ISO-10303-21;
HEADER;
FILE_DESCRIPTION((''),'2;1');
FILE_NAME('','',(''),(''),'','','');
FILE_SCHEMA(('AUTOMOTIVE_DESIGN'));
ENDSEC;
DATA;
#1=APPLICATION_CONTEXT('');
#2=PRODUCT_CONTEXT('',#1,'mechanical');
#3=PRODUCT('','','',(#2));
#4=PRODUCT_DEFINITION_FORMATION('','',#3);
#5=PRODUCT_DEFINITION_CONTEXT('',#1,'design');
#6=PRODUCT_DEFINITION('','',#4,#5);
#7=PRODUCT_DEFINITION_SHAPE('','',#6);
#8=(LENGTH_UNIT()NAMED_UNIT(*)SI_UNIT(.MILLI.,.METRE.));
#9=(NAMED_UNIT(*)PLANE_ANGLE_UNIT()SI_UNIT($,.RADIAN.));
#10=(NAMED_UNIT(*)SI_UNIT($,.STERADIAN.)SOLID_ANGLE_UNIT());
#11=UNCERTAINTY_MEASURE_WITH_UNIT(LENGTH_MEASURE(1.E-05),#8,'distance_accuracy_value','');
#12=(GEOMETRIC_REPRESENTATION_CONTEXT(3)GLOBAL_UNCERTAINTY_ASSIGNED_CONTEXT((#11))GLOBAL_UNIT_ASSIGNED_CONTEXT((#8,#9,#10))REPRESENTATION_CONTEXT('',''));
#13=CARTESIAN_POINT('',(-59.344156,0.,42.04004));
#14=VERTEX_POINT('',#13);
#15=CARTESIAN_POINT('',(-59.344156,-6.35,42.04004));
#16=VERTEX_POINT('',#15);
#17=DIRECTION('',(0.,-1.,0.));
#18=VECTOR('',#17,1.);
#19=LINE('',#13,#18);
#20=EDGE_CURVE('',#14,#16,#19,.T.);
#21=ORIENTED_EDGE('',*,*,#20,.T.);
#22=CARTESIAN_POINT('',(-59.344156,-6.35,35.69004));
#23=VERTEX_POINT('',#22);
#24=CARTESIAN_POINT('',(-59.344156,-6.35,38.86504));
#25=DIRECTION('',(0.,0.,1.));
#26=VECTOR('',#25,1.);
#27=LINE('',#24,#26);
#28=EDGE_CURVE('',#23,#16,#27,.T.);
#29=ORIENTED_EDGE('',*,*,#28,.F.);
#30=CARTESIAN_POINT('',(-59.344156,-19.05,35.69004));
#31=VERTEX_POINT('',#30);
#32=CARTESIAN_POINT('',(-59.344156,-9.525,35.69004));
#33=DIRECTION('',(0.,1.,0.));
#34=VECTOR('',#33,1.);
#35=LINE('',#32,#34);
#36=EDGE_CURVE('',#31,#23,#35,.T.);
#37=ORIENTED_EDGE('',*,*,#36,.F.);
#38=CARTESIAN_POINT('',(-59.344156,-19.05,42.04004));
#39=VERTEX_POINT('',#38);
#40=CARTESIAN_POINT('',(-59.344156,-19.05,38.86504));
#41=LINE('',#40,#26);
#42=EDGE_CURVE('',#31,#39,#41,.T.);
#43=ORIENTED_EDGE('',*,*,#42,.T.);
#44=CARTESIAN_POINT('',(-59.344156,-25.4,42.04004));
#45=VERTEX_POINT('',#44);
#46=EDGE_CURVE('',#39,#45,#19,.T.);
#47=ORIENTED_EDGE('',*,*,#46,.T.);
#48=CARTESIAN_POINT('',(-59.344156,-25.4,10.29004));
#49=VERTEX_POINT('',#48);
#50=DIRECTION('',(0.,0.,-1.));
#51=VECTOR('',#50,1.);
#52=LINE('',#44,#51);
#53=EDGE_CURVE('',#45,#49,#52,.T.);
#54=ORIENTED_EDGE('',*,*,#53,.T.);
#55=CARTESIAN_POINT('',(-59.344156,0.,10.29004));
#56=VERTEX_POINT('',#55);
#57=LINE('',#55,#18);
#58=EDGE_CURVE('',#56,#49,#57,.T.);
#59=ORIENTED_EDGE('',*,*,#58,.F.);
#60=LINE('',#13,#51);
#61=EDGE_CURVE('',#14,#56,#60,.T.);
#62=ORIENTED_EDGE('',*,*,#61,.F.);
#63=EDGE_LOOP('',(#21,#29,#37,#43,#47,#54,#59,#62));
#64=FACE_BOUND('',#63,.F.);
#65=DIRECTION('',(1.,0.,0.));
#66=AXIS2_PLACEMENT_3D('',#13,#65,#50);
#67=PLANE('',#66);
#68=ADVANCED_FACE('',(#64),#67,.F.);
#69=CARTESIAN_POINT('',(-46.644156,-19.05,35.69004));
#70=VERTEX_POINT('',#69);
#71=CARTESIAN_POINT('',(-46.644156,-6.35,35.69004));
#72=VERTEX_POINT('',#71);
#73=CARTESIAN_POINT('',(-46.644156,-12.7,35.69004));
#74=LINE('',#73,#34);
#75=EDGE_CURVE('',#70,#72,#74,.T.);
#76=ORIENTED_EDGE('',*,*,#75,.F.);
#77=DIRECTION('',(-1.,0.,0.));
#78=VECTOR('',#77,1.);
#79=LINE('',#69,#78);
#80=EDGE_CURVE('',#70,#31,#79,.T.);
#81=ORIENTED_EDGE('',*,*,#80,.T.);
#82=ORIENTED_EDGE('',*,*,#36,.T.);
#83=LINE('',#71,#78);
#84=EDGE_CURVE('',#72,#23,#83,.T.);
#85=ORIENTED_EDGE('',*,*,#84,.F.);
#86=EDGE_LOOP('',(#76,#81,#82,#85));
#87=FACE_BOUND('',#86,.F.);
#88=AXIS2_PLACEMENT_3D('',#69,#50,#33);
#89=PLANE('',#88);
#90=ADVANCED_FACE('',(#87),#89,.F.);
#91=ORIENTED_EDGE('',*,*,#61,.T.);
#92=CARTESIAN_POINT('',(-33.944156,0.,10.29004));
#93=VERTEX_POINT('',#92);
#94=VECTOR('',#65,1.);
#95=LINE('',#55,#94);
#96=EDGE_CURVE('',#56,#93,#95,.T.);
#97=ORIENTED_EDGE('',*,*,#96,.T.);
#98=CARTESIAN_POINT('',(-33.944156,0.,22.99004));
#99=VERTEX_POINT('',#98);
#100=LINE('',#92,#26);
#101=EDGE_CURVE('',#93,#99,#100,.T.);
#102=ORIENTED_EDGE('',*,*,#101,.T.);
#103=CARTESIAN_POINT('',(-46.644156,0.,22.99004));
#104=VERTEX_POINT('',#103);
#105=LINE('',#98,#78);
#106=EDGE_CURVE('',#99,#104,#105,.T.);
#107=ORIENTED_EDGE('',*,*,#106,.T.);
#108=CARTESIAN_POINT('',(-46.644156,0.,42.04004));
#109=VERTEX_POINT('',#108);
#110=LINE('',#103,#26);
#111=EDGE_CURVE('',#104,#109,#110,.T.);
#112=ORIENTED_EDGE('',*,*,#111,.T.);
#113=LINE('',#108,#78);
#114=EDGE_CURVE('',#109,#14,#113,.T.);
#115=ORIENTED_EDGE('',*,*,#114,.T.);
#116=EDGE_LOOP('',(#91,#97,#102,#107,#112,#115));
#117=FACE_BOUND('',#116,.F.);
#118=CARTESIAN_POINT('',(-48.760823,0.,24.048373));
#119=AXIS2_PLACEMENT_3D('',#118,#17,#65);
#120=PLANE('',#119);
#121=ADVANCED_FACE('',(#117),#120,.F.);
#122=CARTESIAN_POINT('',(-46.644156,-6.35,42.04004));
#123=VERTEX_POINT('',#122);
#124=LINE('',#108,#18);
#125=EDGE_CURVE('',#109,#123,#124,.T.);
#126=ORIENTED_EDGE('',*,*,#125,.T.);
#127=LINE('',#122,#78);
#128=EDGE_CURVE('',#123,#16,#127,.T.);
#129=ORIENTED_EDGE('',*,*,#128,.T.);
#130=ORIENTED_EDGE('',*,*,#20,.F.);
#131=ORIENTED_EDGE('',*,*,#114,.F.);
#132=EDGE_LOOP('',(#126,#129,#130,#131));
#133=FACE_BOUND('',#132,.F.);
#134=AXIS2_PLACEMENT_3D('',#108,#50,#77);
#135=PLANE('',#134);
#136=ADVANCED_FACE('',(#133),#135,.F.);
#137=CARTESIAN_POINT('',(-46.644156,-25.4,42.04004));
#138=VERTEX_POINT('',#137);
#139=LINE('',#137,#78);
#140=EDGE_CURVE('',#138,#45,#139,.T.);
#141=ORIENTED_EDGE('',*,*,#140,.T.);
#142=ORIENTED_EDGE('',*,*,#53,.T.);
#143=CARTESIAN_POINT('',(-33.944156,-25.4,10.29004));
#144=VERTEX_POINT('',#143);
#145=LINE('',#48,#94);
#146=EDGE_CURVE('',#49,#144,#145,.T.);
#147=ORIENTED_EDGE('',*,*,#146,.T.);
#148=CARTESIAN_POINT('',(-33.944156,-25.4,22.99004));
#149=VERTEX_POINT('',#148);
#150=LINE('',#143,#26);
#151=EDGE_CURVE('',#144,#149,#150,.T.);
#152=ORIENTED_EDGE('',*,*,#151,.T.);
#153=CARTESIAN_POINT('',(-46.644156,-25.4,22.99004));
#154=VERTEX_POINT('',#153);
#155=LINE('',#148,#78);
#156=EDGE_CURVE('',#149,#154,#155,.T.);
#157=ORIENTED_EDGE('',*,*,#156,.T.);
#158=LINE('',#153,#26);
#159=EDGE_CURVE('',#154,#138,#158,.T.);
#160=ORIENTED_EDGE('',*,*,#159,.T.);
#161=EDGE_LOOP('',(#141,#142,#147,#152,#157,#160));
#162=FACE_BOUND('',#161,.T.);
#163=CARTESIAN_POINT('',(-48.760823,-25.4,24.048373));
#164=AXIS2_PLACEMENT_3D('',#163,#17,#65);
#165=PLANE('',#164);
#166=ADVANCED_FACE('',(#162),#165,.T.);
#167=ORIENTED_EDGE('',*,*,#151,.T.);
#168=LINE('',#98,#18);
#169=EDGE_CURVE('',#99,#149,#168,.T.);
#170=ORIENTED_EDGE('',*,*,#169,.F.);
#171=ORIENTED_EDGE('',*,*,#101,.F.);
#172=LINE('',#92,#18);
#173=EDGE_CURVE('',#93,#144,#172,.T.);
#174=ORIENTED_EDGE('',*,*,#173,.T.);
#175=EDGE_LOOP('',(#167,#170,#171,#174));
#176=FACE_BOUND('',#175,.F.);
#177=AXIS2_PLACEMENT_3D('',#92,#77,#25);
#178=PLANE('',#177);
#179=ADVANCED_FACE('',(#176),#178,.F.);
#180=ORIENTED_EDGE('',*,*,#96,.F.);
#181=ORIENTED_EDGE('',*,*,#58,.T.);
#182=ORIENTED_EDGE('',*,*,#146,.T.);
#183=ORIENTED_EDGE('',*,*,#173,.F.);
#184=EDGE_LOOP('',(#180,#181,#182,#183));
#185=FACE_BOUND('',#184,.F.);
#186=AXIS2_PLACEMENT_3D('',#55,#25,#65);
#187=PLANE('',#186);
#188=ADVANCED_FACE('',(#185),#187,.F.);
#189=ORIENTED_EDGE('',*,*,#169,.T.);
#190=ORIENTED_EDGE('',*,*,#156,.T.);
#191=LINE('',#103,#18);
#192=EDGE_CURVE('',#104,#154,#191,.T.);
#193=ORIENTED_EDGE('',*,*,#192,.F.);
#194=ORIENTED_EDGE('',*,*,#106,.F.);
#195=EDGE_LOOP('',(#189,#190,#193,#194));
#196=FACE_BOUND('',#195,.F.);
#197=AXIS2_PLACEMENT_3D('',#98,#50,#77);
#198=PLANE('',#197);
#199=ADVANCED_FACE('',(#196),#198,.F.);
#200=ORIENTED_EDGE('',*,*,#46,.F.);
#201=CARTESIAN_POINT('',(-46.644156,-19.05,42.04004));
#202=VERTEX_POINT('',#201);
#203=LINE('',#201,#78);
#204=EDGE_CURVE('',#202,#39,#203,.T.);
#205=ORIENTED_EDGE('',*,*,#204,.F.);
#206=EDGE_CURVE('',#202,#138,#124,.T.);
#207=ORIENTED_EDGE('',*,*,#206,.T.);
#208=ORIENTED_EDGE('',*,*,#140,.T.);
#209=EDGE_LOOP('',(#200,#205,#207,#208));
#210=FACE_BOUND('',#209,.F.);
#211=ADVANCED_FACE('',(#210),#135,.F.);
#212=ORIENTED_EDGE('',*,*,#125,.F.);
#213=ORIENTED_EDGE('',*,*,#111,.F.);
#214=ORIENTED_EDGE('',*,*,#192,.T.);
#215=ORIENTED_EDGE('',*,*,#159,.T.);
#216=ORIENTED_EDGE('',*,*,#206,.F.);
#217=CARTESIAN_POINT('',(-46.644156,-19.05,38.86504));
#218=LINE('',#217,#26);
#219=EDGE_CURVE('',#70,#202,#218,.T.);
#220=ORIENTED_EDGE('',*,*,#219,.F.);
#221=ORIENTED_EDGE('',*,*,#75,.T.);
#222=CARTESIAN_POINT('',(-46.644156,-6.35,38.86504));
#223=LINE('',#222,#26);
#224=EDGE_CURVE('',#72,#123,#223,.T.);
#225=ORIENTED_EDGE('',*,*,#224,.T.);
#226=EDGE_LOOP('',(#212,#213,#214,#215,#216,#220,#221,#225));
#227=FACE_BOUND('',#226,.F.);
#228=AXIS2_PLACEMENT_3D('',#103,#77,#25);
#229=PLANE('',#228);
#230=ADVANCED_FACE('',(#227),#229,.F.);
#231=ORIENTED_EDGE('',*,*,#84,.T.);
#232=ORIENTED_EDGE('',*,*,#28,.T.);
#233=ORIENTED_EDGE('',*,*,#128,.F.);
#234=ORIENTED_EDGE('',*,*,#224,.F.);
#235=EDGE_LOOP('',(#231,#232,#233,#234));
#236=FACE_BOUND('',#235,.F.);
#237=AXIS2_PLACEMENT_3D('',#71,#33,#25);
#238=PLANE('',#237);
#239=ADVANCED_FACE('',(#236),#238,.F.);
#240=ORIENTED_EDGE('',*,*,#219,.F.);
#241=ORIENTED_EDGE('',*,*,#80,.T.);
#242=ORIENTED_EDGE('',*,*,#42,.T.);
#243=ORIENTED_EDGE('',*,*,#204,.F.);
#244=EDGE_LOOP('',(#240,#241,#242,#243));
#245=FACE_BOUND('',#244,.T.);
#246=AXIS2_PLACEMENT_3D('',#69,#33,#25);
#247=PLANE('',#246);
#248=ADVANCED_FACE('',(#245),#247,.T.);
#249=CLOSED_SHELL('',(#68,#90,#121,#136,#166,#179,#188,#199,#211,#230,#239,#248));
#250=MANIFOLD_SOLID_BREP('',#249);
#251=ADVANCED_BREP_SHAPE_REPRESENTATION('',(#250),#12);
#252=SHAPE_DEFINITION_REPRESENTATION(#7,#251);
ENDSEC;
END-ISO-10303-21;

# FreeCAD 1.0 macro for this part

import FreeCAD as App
import Part
import Sketcher
from FreeCAD import Vector
Q = App.Units.Quantity


def add_polygon(sketch, points):
    """Adds a closed chain of lines whose ends are joined by coincident constraints."""
    first, n = sketch.GeometryCount, len(points)
    for a, b in zip(points, points[1:] + points[:1]):
        sketch.addGeometry(Part.LineSegment(App.Vector(*a, 0), App.Vector(*b, 0)), False)
    for i in range(n):
        sketch.addConstraint(Sketcher.Constraint("Coincident", first + i, 2, first + (i + 1) % n, 1))

doc = App.newDocument("Part")
body = doc.addObject("PartDesign::Body", "Body")

# Sketch on XZ plane
sketch1 = body.newObject("Sketcher::SketchObject", "Sketch")
sketch1.AttachmentSupport = (doc.getObject("XZ_Plane"), [""])
sketch1.MapMode = "FlatFace"
add_polygon(sketch1, [(-47, 42), (-59, 42), (-59, 10), (-34, 10), (-34, 23), (-47, 23)])  # lines 0-5
sketch1.addConstraint(Sketcher.Constraint("Horizontal", 0))
sketch1.addConstraint(Sketcher.Constraint("Vertical", 1))
sketch1.addConstraint(Sketcher.Constraint("Horizontal", 2))
sketch1.addConstraint(Sketcher.Constraint("Vertical", 3))
sketch1.addConstraint(Sketcher.Constraint("Horizontal", 4))
sketch1.addConstraint(Sketcher.Constraint("Vertical", 5))
sketch1.addConstraint(Sketcher.Constraint("Equal", 0, 4))
sketch1.addConstraint(Sketcher.Constraint("Equal", 4, 3))
sketch1.addConstraint(Sketcher.Constraint("DistanceX", 2, 1, 2, 2, Q("1 in")))
sketch1.addConstraint(Sketcher.Constraint("DistanceY", 1, 2, 1, 1, Q("1.25 in")))
sketch1.addConstraint(Sketcher.Constraint("DistanceY", -1, 1, 0, 2, Q("42.04004 mm")))
sketch1.addConstraint(Sketcher.Constraint("DistanceX", 0, 2, -1, 1, Q("59.344156 mm")))
pad1 = body.newObject("PartDesign::Pad", "Pad")
pad1.Profile = sketch1
pad1.Length = Q("1 in")

# Sketch on YZ plane
sketch2 = body.newObject("Sketcher::SketchObject", "Sketch001")
sketch2.AttachmentSupport = (doc.getObject("YZ_Plane"), [""])
sketch2.MapMode = "FlatFace"
sketch2.AttachmentOffset = App.Placement(Vector(0, 0, -46.644156), App.Rotation())
add_polygon(sketch2, [(-19, 42), (-19, 36), (-6, 36), (-6, 42)])  # lines 0-3
sketch2.addConstraint(Sketcher.Constraint("Vertical", 0))
sketch2.addConstraint(Sketcher.Constraint("Horizontal", 1))
sketch2.addConstraint(Sketcher.Constraint("Vertical", 2))
sketch2.addConstraint(Sketcher.Constraint("Horizontal", 3))
sketch2.addConstraint(Sketcher.Constraint("DistanceX", 1, 1, 1, 2, Q("0.5 in")))
sketch2.addConstraint(Sketcher.Constraint("DistanceY", 0, 2, 0, 1, Q("0.25 in")))
sketch2.addConstraint(Sketcher.Constraint("DistanceX", 0, 2, -1, 1, Q("0.75 in")))
sketch2.addConstraint(Sketcher.Constraint("DistanceY", -1, 1, 0, 2, Q("35.69004 mm")))
pocket1 = body.newObject("PartDesign::Pocket", "Pocket")
pocket1.Profile = sketch2
pocket1.Length = Q("1 in")

doc.recompute()
